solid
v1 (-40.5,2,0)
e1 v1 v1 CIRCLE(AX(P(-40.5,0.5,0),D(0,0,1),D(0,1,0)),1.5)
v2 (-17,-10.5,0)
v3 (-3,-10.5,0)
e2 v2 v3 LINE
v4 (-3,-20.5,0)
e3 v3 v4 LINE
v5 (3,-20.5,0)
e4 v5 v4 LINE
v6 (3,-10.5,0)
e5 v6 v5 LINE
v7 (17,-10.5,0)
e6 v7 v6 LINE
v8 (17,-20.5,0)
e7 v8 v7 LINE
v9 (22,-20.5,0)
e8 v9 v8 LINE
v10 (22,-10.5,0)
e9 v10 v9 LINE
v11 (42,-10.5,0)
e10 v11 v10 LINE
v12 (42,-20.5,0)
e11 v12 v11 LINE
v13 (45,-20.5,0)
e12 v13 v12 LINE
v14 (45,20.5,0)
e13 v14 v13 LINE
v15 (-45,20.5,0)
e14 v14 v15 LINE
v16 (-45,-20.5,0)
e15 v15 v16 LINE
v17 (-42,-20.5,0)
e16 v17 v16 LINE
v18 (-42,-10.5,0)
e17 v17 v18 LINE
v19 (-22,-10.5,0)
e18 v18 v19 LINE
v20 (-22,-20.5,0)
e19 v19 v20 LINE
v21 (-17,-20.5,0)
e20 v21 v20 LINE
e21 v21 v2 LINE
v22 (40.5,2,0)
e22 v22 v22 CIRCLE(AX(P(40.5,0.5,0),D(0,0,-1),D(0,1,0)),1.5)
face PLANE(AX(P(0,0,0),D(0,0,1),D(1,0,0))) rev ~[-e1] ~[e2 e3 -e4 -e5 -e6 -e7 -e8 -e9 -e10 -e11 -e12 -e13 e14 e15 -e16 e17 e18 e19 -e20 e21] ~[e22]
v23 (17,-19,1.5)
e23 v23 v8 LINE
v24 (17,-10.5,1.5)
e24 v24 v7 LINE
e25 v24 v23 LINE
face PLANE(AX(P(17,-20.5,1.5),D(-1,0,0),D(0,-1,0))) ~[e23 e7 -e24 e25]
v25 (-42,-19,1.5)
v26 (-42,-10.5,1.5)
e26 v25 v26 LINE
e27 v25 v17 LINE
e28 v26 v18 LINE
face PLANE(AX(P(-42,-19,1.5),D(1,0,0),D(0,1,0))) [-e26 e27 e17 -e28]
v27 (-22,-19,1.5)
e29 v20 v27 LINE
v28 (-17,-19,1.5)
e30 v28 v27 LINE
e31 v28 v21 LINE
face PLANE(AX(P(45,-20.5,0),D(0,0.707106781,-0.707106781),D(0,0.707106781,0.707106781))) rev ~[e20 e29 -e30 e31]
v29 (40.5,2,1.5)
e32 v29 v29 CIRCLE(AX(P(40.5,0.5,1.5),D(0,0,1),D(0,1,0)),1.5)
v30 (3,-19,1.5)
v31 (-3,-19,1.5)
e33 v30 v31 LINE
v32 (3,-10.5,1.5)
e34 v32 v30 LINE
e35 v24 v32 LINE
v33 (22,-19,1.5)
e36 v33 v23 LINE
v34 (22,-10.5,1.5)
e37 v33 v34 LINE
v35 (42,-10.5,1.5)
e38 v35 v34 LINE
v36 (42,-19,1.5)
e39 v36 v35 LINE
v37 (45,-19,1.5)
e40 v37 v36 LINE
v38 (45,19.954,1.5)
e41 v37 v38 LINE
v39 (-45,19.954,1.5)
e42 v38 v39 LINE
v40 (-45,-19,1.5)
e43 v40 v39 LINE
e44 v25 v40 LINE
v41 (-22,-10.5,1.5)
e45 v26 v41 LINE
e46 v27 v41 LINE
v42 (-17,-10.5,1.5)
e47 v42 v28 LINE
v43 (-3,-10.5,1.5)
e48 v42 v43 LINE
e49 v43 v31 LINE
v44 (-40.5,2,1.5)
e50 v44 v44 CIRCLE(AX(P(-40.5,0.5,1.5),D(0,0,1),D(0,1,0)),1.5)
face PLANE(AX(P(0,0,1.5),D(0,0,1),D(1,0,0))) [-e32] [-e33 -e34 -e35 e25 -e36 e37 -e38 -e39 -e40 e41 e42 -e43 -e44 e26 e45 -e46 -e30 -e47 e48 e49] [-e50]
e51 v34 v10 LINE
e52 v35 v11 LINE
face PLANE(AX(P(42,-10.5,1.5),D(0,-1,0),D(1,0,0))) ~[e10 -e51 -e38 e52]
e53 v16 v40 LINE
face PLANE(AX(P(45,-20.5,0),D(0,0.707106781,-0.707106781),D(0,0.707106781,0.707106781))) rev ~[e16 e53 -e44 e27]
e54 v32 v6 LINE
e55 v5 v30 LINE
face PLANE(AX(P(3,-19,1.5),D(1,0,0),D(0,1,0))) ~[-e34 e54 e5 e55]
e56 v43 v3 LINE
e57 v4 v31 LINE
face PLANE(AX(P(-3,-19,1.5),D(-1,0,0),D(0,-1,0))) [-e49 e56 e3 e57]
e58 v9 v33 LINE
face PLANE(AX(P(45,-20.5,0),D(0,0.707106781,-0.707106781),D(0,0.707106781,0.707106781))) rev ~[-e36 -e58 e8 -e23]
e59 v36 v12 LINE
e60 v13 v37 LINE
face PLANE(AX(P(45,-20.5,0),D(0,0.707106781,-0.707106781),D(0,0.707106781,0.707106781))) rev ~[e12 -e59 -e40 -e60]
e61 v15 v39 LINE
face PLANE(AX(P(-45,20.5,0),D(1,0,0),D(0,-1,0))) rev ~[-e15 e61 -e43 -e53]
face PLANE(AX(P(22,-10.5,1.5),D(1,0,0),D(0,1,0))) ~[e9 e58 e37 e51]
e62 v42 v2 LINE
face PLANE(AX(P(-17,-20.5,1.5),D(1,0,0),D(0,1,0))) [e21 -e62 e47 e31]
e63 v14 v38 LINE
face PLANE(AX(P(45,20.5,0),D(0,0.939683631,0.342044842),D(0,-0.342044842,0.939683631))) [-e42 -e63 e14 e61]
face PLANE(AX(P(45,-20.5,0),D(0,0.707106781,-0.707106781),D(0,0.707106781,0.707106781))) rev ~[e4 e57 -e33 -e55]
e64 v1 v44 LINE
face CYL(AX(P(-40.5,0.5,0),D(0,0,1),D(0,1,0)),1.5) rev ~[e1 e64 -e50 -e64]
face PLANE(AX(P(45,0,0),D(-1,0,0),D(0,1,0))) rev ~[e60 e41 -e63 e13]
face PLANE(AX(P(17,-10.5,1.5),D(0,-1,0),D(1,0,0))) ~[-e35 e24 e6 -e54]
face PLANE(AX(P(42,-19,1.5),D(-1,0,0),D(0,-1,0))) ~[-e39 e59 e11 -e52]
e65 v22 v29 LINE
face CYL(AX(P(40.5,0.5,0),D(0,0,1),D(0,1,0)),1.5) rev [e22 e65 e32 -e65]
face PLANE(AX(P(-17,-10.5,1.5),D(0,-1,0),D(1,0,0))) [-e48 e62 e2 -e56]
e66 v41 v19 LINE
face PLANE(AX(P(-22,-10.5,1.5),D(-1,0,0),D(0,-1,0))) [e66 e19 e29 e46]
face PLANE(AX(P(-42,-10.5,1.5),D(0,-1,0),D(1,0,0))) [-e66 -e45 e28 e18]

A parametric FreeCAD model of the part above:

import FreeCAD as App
import Part
import Sketcher

V = App.Vector

doc = App.newDocument("Part")
params = doc.addObject("Spreadsheet::Sheet", "Params")
for row, (alias, value) in enumerate([
    ("sketch1_width", "90 mm"),
    ("sketch1_height", "41 mm"),
    ("pad1_length", "1.5 mm"),
    ("sketch2_width", "1.5 mm"),
    ("pocket1_length", "90 mm"),
    ("sketch3_diameter", "3 mm"),
    ("hole_diameter", "3 mm"),
    ("hole_depth", "4 mm"),
    ("sketch4_width", "20 mm"),
    ("sketch4_width2", "14 mm"),
    ("sketch4_height", "10 mm"),
    ("pocket2_length", "5 mm"),
], start=1):
    params.set(f"A{row}", alias)
    params.set(f"B{row}", "=" + value)
    params.setAlias(f"B{row}", alias)

body = doc.addObject("PartDesign::Body", "Body")

# Sketch on XY plane
sketch1 = body.newObject("Sketcher::SketchObject", "Sketch")
sketch1.AttachmentSupport = (doc.getObject("XY_Plane"), [""])
sketch1.MapMode = "FlatFace"
sketch1.addGeometry([
    Part.LineSegment(V(-45, 20.5, 0), V(-45, -20.5, 0)),
    Part.LineSegment(V(-45, -20.5, 0), V(45, -20.5, 0)),
    Part.LineSegment(V(45, -20.5, 0), V(45, 20.5, 0)),
    Part.LineSegment(V(45, 20.5, 0), V(-45, 20.5, 0)),
], False)
sketch1.addConstraint([
    Sketcher.Constraint("Coincident", 0, 2, 1, 1),
    Sketcher.Constraint("Coincident", 1, 2, 2, 1),
    Sketcher.Constraint("Coincident", 2, 2, 3, 1),
    Sketcher.Constraint("Coincident", 3, 2, 0, 1),
    Sketcher.Constraint("Vertical", 0),
    Sketcher.Constraint("Horizontal", 1),
    Sketcher.Constraint("Vertical", 2),
    Sketcher.Constraint("Horizontal", 3),
    Sketcher.Constraint("Symmetric", 0, 2, 2, 2, -1, 1),
    Sketcher.Constraint("DistanceX", 1, 1, 1, 2, 90.0),
    Sketcher.Constraint("DistanceY", 0, 2, 0, 1, 41.0),
])
sketch1.setExpression("Constraints[9]", "Params.sketch1_width")
sketch1.setExpression("Constraints[10]", "Params.sketch1_height")
pad1 = body.newObject("PartDesign::Pad", "Pad")
pad1.Profile = sketch1
pad1.setExpression("Length", "Params.pad1_length")

# Sketch on YZ plane
sketch2 = body.newObject("Sketcher::SketchObject", "Sketch001")
sketch2.AttachmentSupport = (doc.getObject("YZ_Plane"), [""])
sketch2.MapMode = "FlatFace"
sketch2.AttachmentOffset = App.Placement(V(0, 0, 45), App.Rotation())
sketch2.addGeometry([
    Part.LineSegment(V(-20.5, 1.5, 0), V(-20.5, 0, 0)),  # 0
    Part.LineSegment(V(-20.5, 0, 0), V(-19, 1.5, 0)),  # 1
    Part.LineSegment(V(-19, 1.5, 0), V(-20.5, 1.5, 0)),  # 2
    Part.LineSegment(V(19.954, 1.5, 0), V(20.5, 0, 0)),  # 3
    Part.LineSegment(V(20.5, 0, 0), V(20.5, 1.5, 0)),  # 4
    Part.LineSegment(V(20.5, 1.5, 0), V(19.954, 1.5, 0)),  # 5
], False)
sketch2.addConstraint([
    Sketcher.Constraint("Coincident", 0, 2, 1, 1),
    Sketcher.Constraint("Coincident", 1, 2, 2, 1),
    Sketcher.Constraint("Coincident", 2, 2, 0, 1),
    Sketcher.Constraint("Coincident", 3, 2, 4, 1),
    Sketcher.Constraint("Coincident", 4, 2, 5, 1),
    Sketcher.Constraint("Coincident", 5, 2, 3, 1),
    Sketcher.Constraint("Vertical", 0),
    Sketcher.Constraint("Horizontal", 2),
    Sketcher.Constraint("Vertical", 4),
    Sketcher.Constraint("Horizontal", 5),
    Sketcher.Constraint("Symmetric", 0, 2, 3, 2, -1, 1),
    Sketcher.Constraint("PointOnObject", 0, 2, -1),
    Sketcher.Constraint("Horizontal", 2, 2, 4, 2),
    Sketcher.Constraint("Equal", 2, 0),
    Sketcher.Constraint("DistanceX", 2, 2, 2, 1, 1.5),
    Sketcher.Constraint("DistanceX", 1, 2, -1, 1, 19.0),
    Sketcher.Constraint("DistanceX", 5, 2, 5, 1, 0.546),
])
sketch2.setExpression("Constraints[14]", "Params.sketch2_width")
pocket1 = body.newObject("PartDesign::Pocket", "Pocket")
pocket1.Profile = sketch2
pocket1.setExpression("Length", "Params.pocket1_length")

# Sketch on XY plane
sketch3 = body.newObject("Sketcher::SketchObject", "Sketch002")
sketch3.AttachmentSupport = (doc.getObject("XY_Plane"), [""])
sketch3.MapMode = "FlatFace"
sketch3.addGeometry(Part.Circle(V(-40.5, 0.5, 0), V(0, 0, 1), 1.5), False)
sketch3.addConstraint([
    Sketcher.Constraint("Diameter", 0, 3.0),
    Sketcher.Constraint("DistanceX", 0, 3, -1, 1, 40.5),
    Sketcher.Constraint("DistanceY", -1, 1, 0, 3, 0.5),
])
sketch3.setExpression("Constraints[0]", "Params.sketch3_diameter")
doc.recompute()
hole = body.newObject("PartDesign::Hole", "Hole")
hole.Profile = sketch3
hole.ThreadType = "None"
hole.setExpression("Diameter", "Params.hole_diameter")
hole.DepthType = "Dimension"
hole.setExpression("Depth", "Params.hole_depth")
hole.DrillPoint = "Flat"
hole.Reversed = True

# Sketch on XY plane
sketch4 = body.newObject("Sketcher::SketchObject", "Sketch003")
sketch4.AttachmentSupport = (doc.getObject("XY_Plane"), [""])
sketch4.MapMode = "FlatFace"
sketch4.AttachmentOffset = App.Placement(V(0, 0, 1.5), App.Rotation())
sketch4.addGeometry([
    Part.LineSegment(V(-42, -10.5, 0), V(-42, -20.5, 0)),  # 0
    Part.LineSegment(V(-42, -20.5, 0), V(-22, -20.5, 0)),  # 1
    Part.LineSegment(V(-22, -20.5, 0), V(-22, -10.5, 0)),  # 2
    Part.LineSegment(V(-22, -10.5, 0), V(-42, -10.5, 0)),  # 3
    Part.LineSegment(V(-3, -20.5, 0), V(-3, -10.5, 0)),  # 4
    Part.LineSegment(V(-3, -10.5, 0), V(-17, -10.5, 0)),  # 5
    Part.LineSegment(V(-17, -10.5, 0), V(-17, -20.5, 0)),  # 6
    Part.LineSegment(V(-17, -20.5, 0), V(-3, -20.5, 0)),  # 7
], False)
sketch4.addConstraint([
    Sketcher.Constraint("Coincident", 0, 2, 1, 1),
    Sketcher.Constraint("Coincident", 1, 2, 2, 1),
    Sketcher.Constraint("Coincident", 2, 2, 3, 1),
    Sketcher.Constraint("Coincident", 3, 2, 0, 1),
    Sketcher.Constraint("Coincident", 4, 2, 5, 1),
    Sketcher.Constraint("Coincident", 5, 2, 6, 1),
    Sketcher.Constraint("Coincident", 6, 2, 7, 1),
    Sketcher.Constraint("Coincident", 7, 2, 4, 1),
    Sketcher.Constraint("Vertical", 0),
    Sketcher.Constraint("Horizontal", 1),
    Sketcher.Constraint("Vertical", 2),
    Sketcher.Constraint("Horizontal", 3),
    Sketcher.Constraint("Vertical", 4),
    Sketcher.Constraint("Horizontal", 5),
    Sketcher.Constraint("Vertical", 6),
    Sketcher.Constraint("Horizontal", 7),
    Sketcher.Constraint("Horizontal", 3, 2, 4, 2),
    Sketcher.Constraint("Horizontal", 1, 2, 6, 2),
    Sketcher.Constraint("DistanceX", 1, 1, 1, 2, 20.0),
    Sketcher.Constraint("DistanceX", 5, 2, 5, 1, 14.0),
    Sketcher.Constraint("DistanceY", 0, 2, 0, 1, 10.0),
    Sketcher.Constraint("DistanceX", 4, 2, -1, 1, 3.0),
    Sketcher.Constraint("DistanceX", 2, 2, 5, 2, 5.0),
    Sketcher.Constraint("DistanceY", 0, 2, -1, 1, 20.5),
])
sketch4.setExpression("Constraints[18]", "Params.sketch4_width")
sketch4.setExpression("Constraints[19]", "Params.sketch4_width2")
sketch4.setExpression("Constraints[20]", "Params.sketch4_height")
pocket2 = body.newObject("PartDesign::Pocket", "Pocket001")
pocket2.Profile = sketch4
pocket2.setExpression("Length", "Params.pocket2_length")
doc.recompute()

mirrored = body.newObject("PartDesign::Mirrored", "Mirrored")
mirrored.Originals = [pocket2, hole]
mirrored.MirrorPlane = (doc.getObject("YZ_Plane"), [""])
body.Tip = mirrored

doc.recompute()
